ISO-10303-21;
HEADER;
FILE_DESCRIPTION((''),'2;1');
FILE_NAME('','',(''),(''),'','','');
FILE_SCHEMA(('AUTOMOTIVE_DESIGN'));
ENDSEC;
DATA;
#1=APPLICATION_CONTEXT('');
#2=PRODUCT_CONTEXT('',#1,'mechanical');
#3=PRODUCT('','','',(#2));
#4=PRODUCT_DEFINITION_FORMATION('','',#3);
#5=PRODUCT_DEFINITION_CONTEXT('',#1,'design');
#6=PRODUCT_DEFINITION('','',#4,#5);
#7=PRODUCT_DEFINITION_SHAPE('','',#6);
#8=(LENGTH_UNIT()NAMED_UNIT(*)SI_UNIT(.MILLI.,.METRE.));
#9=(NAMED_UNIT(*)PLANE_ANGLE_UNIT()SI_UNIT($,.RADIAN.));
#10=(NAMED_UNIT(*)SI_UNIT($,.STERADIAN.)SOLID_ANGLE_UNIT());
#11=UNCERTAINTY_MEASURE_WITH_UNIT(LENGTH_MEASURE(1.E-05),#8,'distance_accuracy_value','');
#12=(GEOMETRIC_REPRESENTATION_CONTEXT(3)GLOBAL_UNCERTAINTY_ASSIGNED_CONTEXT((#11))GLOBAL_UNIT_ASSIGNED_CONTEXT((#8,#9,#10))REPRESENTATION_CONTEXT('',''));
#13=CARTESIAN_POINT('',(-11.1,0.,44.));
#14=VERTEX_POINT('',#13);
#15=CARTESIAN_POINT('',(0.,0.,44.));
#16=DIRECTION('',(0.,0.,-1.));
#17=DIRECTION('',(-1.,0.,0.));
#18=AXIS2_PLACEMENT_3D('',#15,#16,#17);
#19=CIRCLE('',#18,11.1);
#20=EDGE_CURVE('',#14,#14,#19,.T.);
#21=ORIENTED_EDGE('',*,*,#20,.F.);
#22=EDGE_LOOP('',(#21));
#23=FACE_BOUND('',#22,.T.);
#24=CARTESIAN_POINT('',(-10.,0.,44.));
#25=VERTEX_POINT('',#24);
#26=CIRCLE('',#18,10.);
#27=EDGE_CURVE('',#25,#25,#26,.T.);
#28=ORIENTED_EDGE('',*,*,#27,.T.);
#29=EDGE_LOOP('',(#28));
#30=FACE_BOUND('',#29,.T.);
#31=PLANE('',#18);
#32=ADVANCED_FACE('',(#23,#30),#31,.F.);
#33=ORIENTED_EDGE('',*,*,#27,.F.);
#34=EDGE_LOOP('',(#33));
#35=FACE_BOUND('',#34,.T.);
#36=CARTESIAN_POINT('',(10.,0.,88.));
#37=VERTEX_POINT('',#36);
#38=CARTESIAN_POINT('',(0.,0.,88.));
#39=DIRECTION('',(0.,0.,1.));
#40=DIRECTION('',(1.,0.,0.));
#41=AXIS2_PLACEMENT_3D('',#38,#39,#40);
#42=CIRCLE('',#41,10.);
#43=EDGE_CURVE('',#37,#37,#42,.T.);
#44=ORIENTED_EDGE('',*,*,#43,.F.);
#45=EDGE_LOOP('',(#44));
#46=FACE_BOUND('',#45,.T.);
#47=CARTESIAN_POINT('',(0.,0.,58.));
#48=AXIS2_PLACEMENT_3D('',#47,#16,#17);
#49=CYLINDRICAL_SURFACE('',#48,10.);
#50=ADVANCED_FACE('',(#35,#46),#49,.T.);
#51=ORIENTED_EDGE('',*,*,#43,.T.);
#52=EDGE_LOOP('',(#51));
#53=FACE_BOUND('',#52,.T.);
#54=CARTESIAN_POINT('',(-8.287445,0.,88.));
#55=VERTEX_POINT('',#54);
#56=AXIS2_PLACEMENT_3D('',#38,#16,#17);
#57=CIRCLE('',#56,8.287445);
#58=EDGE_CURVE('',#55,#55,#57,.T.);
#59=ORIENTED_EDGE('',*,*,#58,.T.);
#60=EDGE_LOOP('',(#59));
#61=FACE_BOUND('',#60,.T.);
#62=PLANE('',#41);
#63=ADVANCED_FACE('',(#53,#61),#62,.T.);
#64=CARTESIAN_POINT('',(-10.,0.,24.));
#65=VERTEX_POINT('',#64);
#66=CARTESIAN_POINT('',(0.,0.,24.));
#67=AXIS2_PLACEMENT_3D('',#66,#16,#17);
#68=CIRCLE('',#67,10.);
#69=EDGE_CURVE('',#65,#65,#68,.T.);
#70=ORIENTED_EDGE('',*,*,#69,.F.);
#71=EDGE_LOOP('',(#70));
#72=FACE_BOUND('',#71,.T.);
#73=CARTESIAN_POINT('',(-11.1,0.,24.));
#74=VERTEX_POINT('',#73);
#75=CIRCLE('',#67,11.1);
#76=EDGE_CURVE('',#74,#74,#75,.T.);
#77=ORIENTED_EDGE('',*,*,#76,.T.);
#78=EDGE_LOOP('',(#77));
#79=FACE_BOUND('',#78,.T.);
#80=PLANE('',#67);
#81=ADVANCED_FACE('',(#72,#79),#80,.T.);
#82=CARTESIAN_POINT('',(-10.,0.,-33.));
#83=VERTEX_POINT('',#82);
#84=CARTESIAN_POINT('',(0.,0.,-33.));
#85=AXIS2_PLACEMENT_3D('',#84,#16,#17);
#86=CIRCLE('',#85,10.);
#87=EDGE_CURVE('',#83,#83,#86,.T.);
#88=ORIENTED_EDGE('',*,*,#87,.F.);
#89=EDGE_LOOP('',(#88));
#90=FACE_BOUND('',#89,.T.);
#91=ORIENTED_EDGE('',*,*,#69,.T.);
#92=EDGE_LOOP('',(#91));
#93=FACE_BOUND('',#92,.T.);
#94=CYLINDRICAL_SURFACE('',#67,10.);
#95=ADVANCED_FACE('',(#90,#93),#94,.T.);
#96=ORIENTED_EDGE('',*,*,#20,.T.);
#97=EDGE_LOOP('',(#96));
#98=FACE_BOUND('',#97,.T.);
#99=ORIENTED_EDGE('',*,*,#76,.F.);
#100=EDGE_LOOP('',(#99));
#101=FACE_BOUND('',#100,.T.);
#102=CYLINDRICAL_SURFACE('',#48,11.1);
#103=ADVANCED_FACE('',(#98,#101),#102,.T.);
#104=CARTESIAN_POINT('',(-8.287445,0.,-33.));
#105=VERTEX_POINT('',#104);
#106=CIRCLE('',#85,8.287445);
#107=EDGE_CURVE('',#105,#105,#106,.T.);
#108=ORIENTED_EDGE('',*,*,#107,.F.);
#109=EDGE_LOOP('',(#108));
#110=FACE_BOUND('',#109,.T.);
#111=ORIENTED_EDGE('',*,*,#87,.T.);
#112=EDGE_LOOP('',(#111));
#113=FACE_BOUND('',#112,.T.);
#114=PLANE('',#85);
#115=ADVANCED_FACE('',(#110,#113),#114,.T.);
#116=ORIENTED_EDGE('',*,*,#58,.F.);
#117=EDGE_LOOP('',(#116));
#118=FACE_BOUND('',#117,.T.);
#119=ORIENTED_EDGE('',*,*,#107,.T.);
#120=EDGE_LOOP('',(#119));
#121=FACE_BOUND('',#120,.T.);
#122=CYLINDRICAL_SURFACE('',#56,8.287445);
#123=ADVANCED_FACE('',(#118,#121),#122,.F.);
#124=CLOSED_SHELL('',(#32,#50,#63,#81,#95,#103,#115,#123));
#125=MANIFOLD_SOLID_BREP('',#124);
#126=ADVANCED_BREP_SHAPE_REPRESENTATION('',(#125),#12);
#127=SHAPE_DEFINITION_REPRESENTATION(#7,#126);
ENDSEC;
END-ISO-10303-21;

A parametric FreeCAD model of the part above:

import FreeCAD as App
import Part
import Sketcher
Q = App.Units.Quantity

doc = App.newDocument("Part")
body = doc.addObject("PartDesign::Body", "Body")

# Sketch on XY plane
sketch1 = body.newObject("Sketcher::SketchObject", "Sketch")
sketch1.AttachmentSupport = (doc.getObject("XY_Plane"), [""])
sketch1.MapMode = "FlatFace"
sketch1.addGeometry(Part.Circle(App.Vector(0, 0, 0), App.Vector(0, 0, 1), 11), False)
sketch1.addConstraint(Sketcher.Constraint("Coincident", 0, 3, -1, 1))
sketch1.addConstraint(Sketcher.Constraint("Diameter", 0, Q("22.2 mm")))
pad1 = body.newObject("PartDesign::Pad", "Pad")
pad1.Profile = sketch1
pad1.Length = 58

# Sketch on XY plane
sketch2 = body.newObject("Sketcher::SketchObject", "Sketch001")
sketch2.AttachmentSupport = (doc.getObject("XY_Plane"), [""])
sketch2.MapMode = "FlatFace"
sketch2.addGeometry(Part.Circle(App.Vector(0, 0, 0), App.Vector(0, 0, 1), 25), False)
sketch2.addGeometry(Part.Circle(App.Vector(0, 0, 0), App.Vector(0, 0, 1), 10), False)
sketch2.addConstraint(Sketcher.Constraint("Coincident", 0, 3, -1, 1))
sketch2.addConstraint(Sketcher.Constraint("Coincident", 1, 3, -1, 1))
sketch2.addConstraint(Sketcher.Constraint("Diameter", 1, Q("20 mm")))
sketch2.addConstraint(Sketcher.Constraint("Diameter", 0, Q("49.555777 mm")))
pocket1 = body.newObject("PartDesign::Pocket", "Pocket")
pocket1.Profile = sketch2
pocket1.Length = 24
pocket1.Reversed = True

# Sketch on XY plane
sketch3 = body.newObject("Sketcher::SketchObject", "Sketch002")
sketch3.AttachmentSupport = (doc.getObject("XY_Plane"), [""])
sketch3.MapMode = "FlatFace"
sketch3.AttachmentOffset = App.Placement(App.Vector(0, 0, 44), App.Rotation())
sketch3.addGeometry(Part.Circle(App.Vector(0, 0, 0), App.Vector(0, 0, 1), 25), False)
sketch3.addGeometry(Part.Circle(App.Vector(0, 0, 0), App.Vector(0, 0, 1), 10), False)
sketch3.addConstraint(Sketcher.Constraint("Coincident", 0, 3, -1, 1))
sketch3.addConstraint(Sketcher.Constraint("Coincident", 1, 3, -1, 1))
sketch3.addConstraint(Sketcher.Constraint("Diameter", 1, Q("20 mm")))
sketch3.addConstraint(Sketcher.Constraint("Diameter", 0, Q("49.555777 mm")))
pocket2 = body.newObject("PartDesign::Pocket", "Pocket001")
pocket2.Profile = sketch3
pocket2.Length = 14
pocket2.Reversed = True

# Sketch on XY plane
sketch4 = body.newObject("Sketcher::SketchObject", "Sketch003")
sketch4.AttachmentSupport = (doc.getObject("XY_Plane"), [""])
sketch4.MapMode = "FlatFace"
sketch4.AttachmentOffset = App.Placement(App.Vector(0, 0, 58), App.Rotation())
sketch4.addGeometry(Part.Circle(App.Vector(0, 0, 0), App.Vector(0, 0, 1), 10), False)
sketch4.addConstraint(Sketcher.Constraint("Coincident", 0, 3, -1, 1))
sketch4.addConstraint(Sketcher.Constraint("Diameter", 0, Q("20 mm")))
pad2 = body.newObject("PartDesign::Pad", "Pad001")
pad2.Profile = sketch4
pad2.Length = 30

# Sketch on XY plane
sketch5 = body.newObject("Sketcher::SketchObject", "Sketch004")
sketch5.AttachmentSupport = (doc.getObject("XY_Plane"), [""])
sketch5.MapMode = "FlatFace"
sketch5.addGeometry(Part.Circle(App.Vector(0, 0, 0), App.Vector(0, 0, 1), 10), False)
sketch5.addConstraint(Sketcher.Constraint("Coincident", 0, 3, -1, 1))
sketch5.addConstraint(Sketcher.Constraint("Diameter", 0, Q("20 mm")))
pad3 = body.newObject("PartDesign::Pad", "Pad002")
pad3.Profile = sketch5
pad3.Length = 45
pad3.Reversed = True

# Sketch on XY plane
sketch6 = body.newObject("Sketcher::SketchObject", "Sketch005")
sketch6.AttachmentSupport = (doc.getObject("XY_Plane"), [""])
sketch6.MapMode = "FlatFace"
sketch6.AttachmentOffset = App.Placement(App.Vector(0, 0, -45), App.Rotation())
sketch6.addGeometry(Part.Circle(App.Vector(0, 0, 0), App.Vector(0, 0, 1), 10), False)
sketch6.addConstraint(Sketcher.Constraint("Coincident", 0, 3, -1, 1))
sketch6.addConstraint(Sketcher.Constraint("Diameter", 0, Q("20 mm")))
pocket3 = body.newObject("PartDesign::Pocket", "Pocket002")
pocket3.Profile = sketch6
pocket3.Length = 12
pocket3.Reversed = True

# Sketch on XY plane
sketch7 = body.newObject("Sketcher::SketchObject", "Sketch006")
sketch7.AttachmentSupport = (doc.getObject("XY_Plane"), [""])
sketch7.MapMode = "FlatFace"
sketch7.AttachmentOffset = App.Placement(App.Vector(0, 0, -33), App.Rotation())
sketch7.addGeometry(Part.Circle(App.Vector(0, 0, 0), App.Vector(0, 0, 1), 8), False)
sketch7.addConstraint(Sketcher.Constraint("Coincident", 0, 3, -1, 1))
sketch7.addConstraint(Sketcher.Constraint("Diameter", 0, Q("16.57489 mm")))
pocket4 = body.newObject("PartDesign::Pocket", "Pocket003")
pocket4.Profile = sketch7
pocket4.Type = "ThroughAll"
pocket4.Reversed = True

doc.recompute()
